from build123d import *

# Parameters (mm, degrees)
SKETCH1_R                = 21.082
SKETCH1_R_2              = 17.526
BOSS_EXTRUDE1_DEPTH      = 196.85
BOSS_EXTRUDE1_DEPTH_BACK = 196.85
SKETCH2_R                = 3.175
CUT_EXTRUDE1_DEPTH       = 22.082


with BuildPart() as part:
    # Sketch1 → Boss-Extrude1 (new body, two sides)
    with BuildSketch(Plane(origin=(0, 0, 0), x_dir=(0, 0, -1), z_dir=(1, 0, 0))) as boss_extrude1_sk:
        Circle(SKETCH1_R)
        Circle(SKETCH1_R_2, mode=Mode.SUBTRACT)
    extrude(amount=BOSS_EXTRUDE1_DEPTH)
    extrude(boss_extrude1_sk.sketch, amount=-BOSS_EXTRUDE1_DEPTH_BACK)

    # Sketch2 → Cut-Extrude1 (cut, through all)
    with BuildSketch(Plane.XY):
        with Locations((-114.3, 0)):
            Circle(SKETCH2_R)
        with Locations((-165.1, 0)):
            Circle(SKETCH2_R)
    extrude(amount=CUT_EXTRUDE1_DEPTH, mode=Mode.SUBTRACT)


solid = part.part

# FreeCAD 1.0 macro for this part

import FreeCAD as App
import Part
import Sketcher

V = App.Vector
Q = App.Units.Quantity

doc = App.newDocument("Part")
body = doc.addObject("PartDesign::Body", "Body")

# Sketch on YZ plane
sketch1 = body.newObject("Sketcher::SketchObject", "Sketch")
sketch1.AttachmentSupport = (doc.getObject("YZ_Plane"), [""])
sketch1.MapMode = "FlatFace"
sketch1.addGeometry([
    Part.Circle(V(0, 0, 0), V(0, 0, 1), 21),
    Part.Circle(V(0, 0, 0), V(0, 0, 1), 18),
], False)
sketch1.addConstraint([
    Sketcher.Constraint("Coincident", 0, 3, -1, 1),
    Sketcher.Constraint("Coincident", 1, 3, -1, 1),
    Sketcher.Constraint("Diameter", 0, Q("1.66 in")),
    Sketcher.Constraint("Diameter", 1, Q("1.38 in")),
])
pad1 = body.newObject("PartDesign::Pad", "Pad")
pad1.Profile = sketch1
pad1.Type = "TwoLengths"
pad1.Length = Q("7.75 in")
pad1.Length2 = Q("7.75 in")

# Sketch on XY plane
sketch2 = body.newObject("Sketcher::SketchObject", "Sketch001")
sketch2.AttachmentSupport = (doc.getObject("XY_Plane"), [""])
sketch2.MapMode = "FlatFace"
sketch2.addGeometry([
    Part.Circle(V(-114.3, 0, 0), V(0, 0, 1), 3.2),
    Part.Circle(V(-165.1, 0, 0), V(0, 0, 1), 3.2),
], False)
sketch2.addConstraint([
    Sketcher.Constraint("Equal", 0, 1),
    Sketcher.Constraint("PointOnObject", 0, 3, -1),
    Sketcher.Constraint("PointOnObject", 1, 3, -1),
    Sketcher.Constraint("Diameter", 0, Q("0.25 in")),
    Sketcher.Constraint("DistanceX", 1, 3, 0, 3, Q("2 in")),
    Sketcher.Constraint("DistanceX", 0, 3, -1, 1, Q("4.5 in")),
])
pocket1 = body.newObject("PartDesign::Pocket", "Pocket")
pocket1.Profile = sketch2
pocket1.Type = "ThroughAll"
pocket1.Reversed = True

doc.recompute()
